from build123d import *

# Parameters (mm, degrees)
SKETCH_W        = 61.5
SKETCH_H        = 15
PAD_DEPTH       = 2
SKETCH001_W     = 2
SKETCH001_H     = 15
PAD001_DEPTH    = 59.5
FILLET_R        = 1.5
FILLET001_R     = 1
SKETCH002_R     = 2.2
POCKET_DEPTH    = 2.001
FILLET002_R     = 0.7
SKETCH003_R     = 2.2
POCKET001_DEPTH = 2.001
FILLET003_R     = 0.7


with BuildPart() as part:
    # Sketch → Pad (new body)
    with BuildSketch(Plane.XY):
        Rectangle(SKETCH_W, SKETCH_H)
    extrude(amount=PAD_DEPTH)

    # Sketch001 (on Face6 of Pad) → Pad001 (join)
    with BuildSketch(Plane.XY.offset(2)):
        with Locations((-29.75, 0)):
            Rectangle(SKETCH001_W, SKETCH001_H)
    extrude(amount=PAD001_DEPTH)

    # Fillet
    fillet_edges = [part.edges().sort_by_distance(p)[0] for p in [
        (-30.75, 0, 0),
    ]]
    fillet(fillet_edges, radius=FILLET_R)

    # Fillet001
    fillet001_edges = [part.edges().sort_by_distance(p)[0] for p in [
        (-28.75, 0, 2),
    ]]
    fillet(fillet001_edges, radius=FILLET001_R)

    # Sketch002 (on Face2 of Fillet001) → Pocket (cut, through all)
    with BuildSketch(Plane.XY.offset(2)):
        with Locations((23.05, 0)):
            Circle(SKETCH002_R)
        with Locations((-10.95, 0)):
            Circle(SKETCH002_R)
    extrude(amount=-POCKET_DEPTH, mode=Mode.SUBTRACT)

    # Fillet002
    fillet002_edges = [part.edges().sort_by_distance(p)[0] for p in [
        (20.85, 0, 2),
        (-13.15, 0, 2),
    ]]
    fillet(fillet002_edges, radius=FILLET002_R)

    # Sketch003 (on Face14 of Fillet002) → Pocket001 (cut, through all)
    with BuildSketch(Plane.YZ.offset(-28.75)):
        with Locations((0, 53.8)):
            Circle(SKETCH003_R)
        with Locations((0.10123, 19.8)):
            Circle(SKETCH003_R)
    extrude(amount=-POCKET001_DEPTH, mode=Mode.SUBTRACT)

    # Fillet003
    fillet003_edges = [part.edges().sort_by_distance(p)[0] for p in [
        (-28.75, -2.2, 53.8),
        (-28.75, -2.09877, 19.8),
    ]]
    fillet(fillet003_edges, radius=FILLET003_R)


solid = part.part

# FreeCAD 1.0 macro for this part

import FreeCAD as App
import Part
import Sketcher
Q = App.Units.Quantity


def edges_at(feature, points):
    """Names of the edges that pass closest to the given points."""
    edges = feature.Shape.Edges
    near = lambda p: min(range(len(edges)), key=lambda i: edges[i].distToShape(Part.Vertex(*p))[0])
    return sorted({f"Edge{near(p) + 1}" for p in points})

doc = App.newDocument("Part")
params = doc.addObject("Spreadsheet::Sheet", "Params")
for row, (alias, value) in enumerate([
    ("sketch1_height", "15 mm"),
    ("sketch1_width", "61.5 mm"),
    ("pad1_length", "2 mm"),
    ("sketch2_width", "2 mm"),
    ("sketch2_height", "15 mm"),
    ("pad2_length", "59.5 mm"),
    ("fillet_radius", "1.5 mm"),
    ("fillet2_radius", "1 mm"),
    ("sketch3_diameter", "4.4 mm"),
    ("fillet3_radius", "0.7 mm"),
    ("sketch4_diameter", "4.4 mm"),
    ("fillet4_radius", "0.7 mm"),
], start=1):
    params.set(f"A{row}", alias)
    params.set(f"B{row}", "=" + value)
    params.setAlias(f"B{row}", alias)

body = doc.addObject("PartDesign::Body", "Body")

# Sketch on XY plane
sketch1 = doc.addObject("Sketcher::SketchObject", "Sketch")
body.addObject(sketch1)
sketch1.AttachmentSupport = (doc.XY_Plane, [""])
sketch1.MapMode = "FlatFace"
sketch1.addGeometry(Part.LineSegment(App.Vector(-30.75, 7.5, 0), App.Vector(-30.75, -7.5, 0)), False)
sketch1.addGeometry(Part.LineSegment(App.Vector(-30.75, -7.5, 0), App.Vector(30.75, -7.5, 0)), False)
sketch1.addGeometry(Part.LineSegment(App.Vector(30.75, -7.5, 0), App.Vector(30.75, 7.5, 0)), False)
sketch1.addGeometry(Part.LineSegment(App.Vector(30.75, 7.5, 0), App.Vector(-30.75, 7.5, 0)), False)
sketch1.addConstraint(Sketcher.Constraint("Coincident", 0, 2, 1, 1))
sketch1.addConstraint(Sketcher.Constraint("Coincident", 1, 2, 2, 1))
sketch1.addConstraint(Sketcher.Constraint("Coincident", 2, 2, 3, 1))
sketch1.addConstraint(Sketcher.Constraint("Coincident", 3, 2, 0, 1))
sketch1.addConstraint(Sketcher.Constraint("Vertical", 0))
sketch1.addConstraint(Sketcher.Constraint("Horizontal", 1))
sketch1.addConstraint(Sketcher.Constraint("Vertical", 2))
sketch1.addConstraint(Sketcher.Constraint("Horizontal", 3))
sketch1.addConstraint(Sketcher.Constraint("Symmetric", 0, 2, 2, 2, -1, 1))
sketch1.addConstraint(Sketcher.Constraint("DistanceY", 0, 2, 0, 1, Q("15 mm")))
sketch1.addConstraint(Sketcher.Constraint("DistanceX", 1, 1, 1, 2, Q("61.5 mm")))
sketch1.setExpression("Constraints[9]", "Params.sketch1_height")
sketch1.setExpression("Constraints[10]", "Params.sketch1_width")
pad1 = doc.addObject("PartDesign::Pad", "Pad")
body.addObject(pad1)
pad1.Profile = sketch1
pad1.setExpression("Length", "Params.pad1_length")

# Sketch on XY plane
sketch2 = doc.addObject("Sketcher::SketchObject", "Sketch001")
body.addObject(sketch2)
sketch2.AttachmentSupport = (doc.XY_Plane, [""])
sketch2.MapMode = "FlatFace"
sketch2.AttachmentOffset = App.Placement(App.Vector(0, 0, 2), App.Rotation())
sketch2.addGeometry(Part.LineSegment(App.Vector(-30.75, 7.5, 0), App.Vector(-30.75, -7.5, 0)), False)
sketch2.addGeometry(Part.LineSegment(App.Vector(-30.75, -7.5, 0), App.Vector(-28.75, -7.5, 0)), False)
sketch2.addGeometry(Part.LineSegment(App.Vector(-28.75, -7.5, 0), App.Vector(-28.75, 7.5, 0)), False)
sketch2.addGeometry(Part.LineSegment(App.Vector(-28.75, 7.5, 0), App.Vector(-30.75, 7.5, 0)), False)
sketch2.addConstraint(Sketcher.Constraint("Coincident", 0, 2, 1, 1))
sketch2.addConstraint(Sketcher.Constraint("Coincident", 1, 2, 2, 1))
sketch2.addConstraint(Sketcher.Constraint("Coincident", 2, 2, 3, 1))
sketch2.addConstraint(Sketcher.Constraint("Coincident", 3, 2, 0, 1))
sketch2.addConstraint(Sketcher.Constraint("Vertical", 0))
sketch2.addConstraint(Sketcher.Constraint("Horizontal", 1))
sketch2.addConstraint(Sketcher.Constraint("Vertical", 2))
sketch2.addConstraint(Sketcher.Constraint("Horizontal", 3))
sketch2.addConstraint(Sketcher.Constraint("DistanceX", 1, 1, 1, 2, Q("2 mm")))
sketch2.addConstraint(Sketcher.Constraint("DistanceY", 0, 2, 0, 1, Q("15 mm")))
sketch2.addConstraint(Sketcher.Constraint("DistanceY", 0, 2, -1, 1, Q("7.5 mm")))
sketch2.addConstraint(Sketcher.Constraint("DistanceX", 0, 2, -1, 1, Q("30.75 mm")))
sketch2.setExpression("Constraints[8]", "Params.sketch2_width")
sketch2.setExpression("Constraints[9]", "Params.sketch2_height")
pad2 = doc.addObject("PartDesign::Pad", "Pad001")
body.addObject(pad2)
pad2.Profile = sketch2
pad2.setExpression("Length", "Params.pad2_length")
doc.recompute()

fillet = doc.addObject("PartDesign::Fillet", "Fillet")
body.addObject(fillet)
fillet.Base = (pad2, edges_at(pad2, [(-30.75, 0, 0)]))
fillet.setExpression("Radius", "Params.fillet_radius")
doc.recompute()

fillet2 = doc.addObject("PartDesign::Fillet", "Fillet001")
body.addObject(fillet2)
fillet2.Base = (fillet, edges_at(fillet, [(-28.75, 0, 2)]))
fillet2.setExpression("Radius", "Params.fillet2_radius")

# Sketch on XY plane
sketch3 = doc.addObject("Sketcher::SketchObject", "Sketch002")
body.addObject(sketch3)
sketch3.AttachmentSupport = (doc.XY_Plane, [""])
sketch3.MapMode = "FlatFace"
sketch3.AttachmentOffset = App.Placement(App.Vector(0, 0, 2), App.Rotation())
sketch3.addGeometry(Part.Circle(App.Vector(23.05, 0, 0), App.Vector(0, 0, 1), 2.2), False)
sketch3.addGeometry(Part.Circle(App.Vector(-10.95, 0, 0), App.Vector(0, 0, 1), 2.2), False)
sketch3.addConstraint(Sketcher.Constraint("Equal", 0, 1))
sketch3.addConstraint(Sketcher.Constraint("PointOnObject", 0, 3, -1))
sketch3.addConstraint(Sketcher.Constraint("PointOnObject", 1, 3, -1))
sketch3.addConstraint(Sketcher.Constraint("Diameter", 0, Q("4.4 mm")))
sketch3.addConstraint(Sketcher.Constraint("DistanceX", 1, 3, 0, 3, Q("34 mm")))
sketch3.addConstraint(Sketcher.Constraint("DistanceX", -1, 1, 0, 3, Q("23.05 mm")))
sketch3.setExpression("Constraints[3]", "Params.sketch3_diameter")
pocket1 = doc.addObject("PartDesign::Pocket", "Pocket")
body.addObject(pocket1)
pocket1.Profile = sketch3
pocket1.Type = "ThroughAll"
doc.recompute()

fillet3 = doc.addObject("PartDesign::Fillet", "Fillet002")
body.addObject(fillet3)
fillet3.Base = (pocket1, edges_at(pocket1, [(20.85, 0, 2), (-13.15, 0, 2)]))
fillet3.setExpression("Radius", "Params.fillet3_radius")

# Sketch on YZ plane
sketch4 = doc.addObject("Sketcher::SketchObject", "Sketch003")
body.addObject(sketch4)
sketch4.AttachmentSupport = (doc.YZ_Plane, [""])
sketch4.MapMode = "FlatFace"
sketch4.AttachmentOffset = App.Placement(App.Vector(0, 0, -28.75), App.Rotation())
sketch4.addGeometry(Part.Circle(App.Vector(0, 53.8, 0), App.Vector(0, 0, 1), 2.2), False)
sketch4.addGeometry(Part.Circle(App.Vector(0.10123, 19.8, 0), App.Vector(0, 0, 1), 2.2), False)
sketch4.addConstraint(Sketcher.Constraint("Equal", 0, 1))
sketch4.addConstraint(Sketcher.Constraint("PointOnObject", 0, 3, -2))
sketch4.addConstraint(Sketcher.Constraint("Diameter", 0, Q("4.4 mm")))
sketch4.addConstraint(Sketcher.Constraint("DistanceY", 1, 3, 0, 3, Q("34 mm")))
sketch4.addConstraint(Sketcher.Constraint("DistanceY", -1, 1, 0, 3, Q("53.8 mm")))
sketch4.addConstraint(Sketcher.Constraint("DistanceX", -1, 1, 1, 3, Q("0.10123 mm")))
sketch4.setExpression("Constraints[2]", "Params.sketch4_diameter")
pocket2 = doc.addObject("PartDesign::Pocket", "Pocket001")
body.addObject(pocket2)
pocket2.Profile = sketch4
pocket2.Type = "ThroughAll"
doc.recompute()

fillet4 = doc.addObject("PartDesign::Fillet", "Fillet003")
body.addObject(fillet4)
fillet4.Base = (pocket2, edges_at(pocket2, [(-28.75, -2.2, 53.8), (-28.75, -2.099, 19.8)]))
fillet4.setExpression("Radius", "Params.fillet4_radius")

doc.recompute()
